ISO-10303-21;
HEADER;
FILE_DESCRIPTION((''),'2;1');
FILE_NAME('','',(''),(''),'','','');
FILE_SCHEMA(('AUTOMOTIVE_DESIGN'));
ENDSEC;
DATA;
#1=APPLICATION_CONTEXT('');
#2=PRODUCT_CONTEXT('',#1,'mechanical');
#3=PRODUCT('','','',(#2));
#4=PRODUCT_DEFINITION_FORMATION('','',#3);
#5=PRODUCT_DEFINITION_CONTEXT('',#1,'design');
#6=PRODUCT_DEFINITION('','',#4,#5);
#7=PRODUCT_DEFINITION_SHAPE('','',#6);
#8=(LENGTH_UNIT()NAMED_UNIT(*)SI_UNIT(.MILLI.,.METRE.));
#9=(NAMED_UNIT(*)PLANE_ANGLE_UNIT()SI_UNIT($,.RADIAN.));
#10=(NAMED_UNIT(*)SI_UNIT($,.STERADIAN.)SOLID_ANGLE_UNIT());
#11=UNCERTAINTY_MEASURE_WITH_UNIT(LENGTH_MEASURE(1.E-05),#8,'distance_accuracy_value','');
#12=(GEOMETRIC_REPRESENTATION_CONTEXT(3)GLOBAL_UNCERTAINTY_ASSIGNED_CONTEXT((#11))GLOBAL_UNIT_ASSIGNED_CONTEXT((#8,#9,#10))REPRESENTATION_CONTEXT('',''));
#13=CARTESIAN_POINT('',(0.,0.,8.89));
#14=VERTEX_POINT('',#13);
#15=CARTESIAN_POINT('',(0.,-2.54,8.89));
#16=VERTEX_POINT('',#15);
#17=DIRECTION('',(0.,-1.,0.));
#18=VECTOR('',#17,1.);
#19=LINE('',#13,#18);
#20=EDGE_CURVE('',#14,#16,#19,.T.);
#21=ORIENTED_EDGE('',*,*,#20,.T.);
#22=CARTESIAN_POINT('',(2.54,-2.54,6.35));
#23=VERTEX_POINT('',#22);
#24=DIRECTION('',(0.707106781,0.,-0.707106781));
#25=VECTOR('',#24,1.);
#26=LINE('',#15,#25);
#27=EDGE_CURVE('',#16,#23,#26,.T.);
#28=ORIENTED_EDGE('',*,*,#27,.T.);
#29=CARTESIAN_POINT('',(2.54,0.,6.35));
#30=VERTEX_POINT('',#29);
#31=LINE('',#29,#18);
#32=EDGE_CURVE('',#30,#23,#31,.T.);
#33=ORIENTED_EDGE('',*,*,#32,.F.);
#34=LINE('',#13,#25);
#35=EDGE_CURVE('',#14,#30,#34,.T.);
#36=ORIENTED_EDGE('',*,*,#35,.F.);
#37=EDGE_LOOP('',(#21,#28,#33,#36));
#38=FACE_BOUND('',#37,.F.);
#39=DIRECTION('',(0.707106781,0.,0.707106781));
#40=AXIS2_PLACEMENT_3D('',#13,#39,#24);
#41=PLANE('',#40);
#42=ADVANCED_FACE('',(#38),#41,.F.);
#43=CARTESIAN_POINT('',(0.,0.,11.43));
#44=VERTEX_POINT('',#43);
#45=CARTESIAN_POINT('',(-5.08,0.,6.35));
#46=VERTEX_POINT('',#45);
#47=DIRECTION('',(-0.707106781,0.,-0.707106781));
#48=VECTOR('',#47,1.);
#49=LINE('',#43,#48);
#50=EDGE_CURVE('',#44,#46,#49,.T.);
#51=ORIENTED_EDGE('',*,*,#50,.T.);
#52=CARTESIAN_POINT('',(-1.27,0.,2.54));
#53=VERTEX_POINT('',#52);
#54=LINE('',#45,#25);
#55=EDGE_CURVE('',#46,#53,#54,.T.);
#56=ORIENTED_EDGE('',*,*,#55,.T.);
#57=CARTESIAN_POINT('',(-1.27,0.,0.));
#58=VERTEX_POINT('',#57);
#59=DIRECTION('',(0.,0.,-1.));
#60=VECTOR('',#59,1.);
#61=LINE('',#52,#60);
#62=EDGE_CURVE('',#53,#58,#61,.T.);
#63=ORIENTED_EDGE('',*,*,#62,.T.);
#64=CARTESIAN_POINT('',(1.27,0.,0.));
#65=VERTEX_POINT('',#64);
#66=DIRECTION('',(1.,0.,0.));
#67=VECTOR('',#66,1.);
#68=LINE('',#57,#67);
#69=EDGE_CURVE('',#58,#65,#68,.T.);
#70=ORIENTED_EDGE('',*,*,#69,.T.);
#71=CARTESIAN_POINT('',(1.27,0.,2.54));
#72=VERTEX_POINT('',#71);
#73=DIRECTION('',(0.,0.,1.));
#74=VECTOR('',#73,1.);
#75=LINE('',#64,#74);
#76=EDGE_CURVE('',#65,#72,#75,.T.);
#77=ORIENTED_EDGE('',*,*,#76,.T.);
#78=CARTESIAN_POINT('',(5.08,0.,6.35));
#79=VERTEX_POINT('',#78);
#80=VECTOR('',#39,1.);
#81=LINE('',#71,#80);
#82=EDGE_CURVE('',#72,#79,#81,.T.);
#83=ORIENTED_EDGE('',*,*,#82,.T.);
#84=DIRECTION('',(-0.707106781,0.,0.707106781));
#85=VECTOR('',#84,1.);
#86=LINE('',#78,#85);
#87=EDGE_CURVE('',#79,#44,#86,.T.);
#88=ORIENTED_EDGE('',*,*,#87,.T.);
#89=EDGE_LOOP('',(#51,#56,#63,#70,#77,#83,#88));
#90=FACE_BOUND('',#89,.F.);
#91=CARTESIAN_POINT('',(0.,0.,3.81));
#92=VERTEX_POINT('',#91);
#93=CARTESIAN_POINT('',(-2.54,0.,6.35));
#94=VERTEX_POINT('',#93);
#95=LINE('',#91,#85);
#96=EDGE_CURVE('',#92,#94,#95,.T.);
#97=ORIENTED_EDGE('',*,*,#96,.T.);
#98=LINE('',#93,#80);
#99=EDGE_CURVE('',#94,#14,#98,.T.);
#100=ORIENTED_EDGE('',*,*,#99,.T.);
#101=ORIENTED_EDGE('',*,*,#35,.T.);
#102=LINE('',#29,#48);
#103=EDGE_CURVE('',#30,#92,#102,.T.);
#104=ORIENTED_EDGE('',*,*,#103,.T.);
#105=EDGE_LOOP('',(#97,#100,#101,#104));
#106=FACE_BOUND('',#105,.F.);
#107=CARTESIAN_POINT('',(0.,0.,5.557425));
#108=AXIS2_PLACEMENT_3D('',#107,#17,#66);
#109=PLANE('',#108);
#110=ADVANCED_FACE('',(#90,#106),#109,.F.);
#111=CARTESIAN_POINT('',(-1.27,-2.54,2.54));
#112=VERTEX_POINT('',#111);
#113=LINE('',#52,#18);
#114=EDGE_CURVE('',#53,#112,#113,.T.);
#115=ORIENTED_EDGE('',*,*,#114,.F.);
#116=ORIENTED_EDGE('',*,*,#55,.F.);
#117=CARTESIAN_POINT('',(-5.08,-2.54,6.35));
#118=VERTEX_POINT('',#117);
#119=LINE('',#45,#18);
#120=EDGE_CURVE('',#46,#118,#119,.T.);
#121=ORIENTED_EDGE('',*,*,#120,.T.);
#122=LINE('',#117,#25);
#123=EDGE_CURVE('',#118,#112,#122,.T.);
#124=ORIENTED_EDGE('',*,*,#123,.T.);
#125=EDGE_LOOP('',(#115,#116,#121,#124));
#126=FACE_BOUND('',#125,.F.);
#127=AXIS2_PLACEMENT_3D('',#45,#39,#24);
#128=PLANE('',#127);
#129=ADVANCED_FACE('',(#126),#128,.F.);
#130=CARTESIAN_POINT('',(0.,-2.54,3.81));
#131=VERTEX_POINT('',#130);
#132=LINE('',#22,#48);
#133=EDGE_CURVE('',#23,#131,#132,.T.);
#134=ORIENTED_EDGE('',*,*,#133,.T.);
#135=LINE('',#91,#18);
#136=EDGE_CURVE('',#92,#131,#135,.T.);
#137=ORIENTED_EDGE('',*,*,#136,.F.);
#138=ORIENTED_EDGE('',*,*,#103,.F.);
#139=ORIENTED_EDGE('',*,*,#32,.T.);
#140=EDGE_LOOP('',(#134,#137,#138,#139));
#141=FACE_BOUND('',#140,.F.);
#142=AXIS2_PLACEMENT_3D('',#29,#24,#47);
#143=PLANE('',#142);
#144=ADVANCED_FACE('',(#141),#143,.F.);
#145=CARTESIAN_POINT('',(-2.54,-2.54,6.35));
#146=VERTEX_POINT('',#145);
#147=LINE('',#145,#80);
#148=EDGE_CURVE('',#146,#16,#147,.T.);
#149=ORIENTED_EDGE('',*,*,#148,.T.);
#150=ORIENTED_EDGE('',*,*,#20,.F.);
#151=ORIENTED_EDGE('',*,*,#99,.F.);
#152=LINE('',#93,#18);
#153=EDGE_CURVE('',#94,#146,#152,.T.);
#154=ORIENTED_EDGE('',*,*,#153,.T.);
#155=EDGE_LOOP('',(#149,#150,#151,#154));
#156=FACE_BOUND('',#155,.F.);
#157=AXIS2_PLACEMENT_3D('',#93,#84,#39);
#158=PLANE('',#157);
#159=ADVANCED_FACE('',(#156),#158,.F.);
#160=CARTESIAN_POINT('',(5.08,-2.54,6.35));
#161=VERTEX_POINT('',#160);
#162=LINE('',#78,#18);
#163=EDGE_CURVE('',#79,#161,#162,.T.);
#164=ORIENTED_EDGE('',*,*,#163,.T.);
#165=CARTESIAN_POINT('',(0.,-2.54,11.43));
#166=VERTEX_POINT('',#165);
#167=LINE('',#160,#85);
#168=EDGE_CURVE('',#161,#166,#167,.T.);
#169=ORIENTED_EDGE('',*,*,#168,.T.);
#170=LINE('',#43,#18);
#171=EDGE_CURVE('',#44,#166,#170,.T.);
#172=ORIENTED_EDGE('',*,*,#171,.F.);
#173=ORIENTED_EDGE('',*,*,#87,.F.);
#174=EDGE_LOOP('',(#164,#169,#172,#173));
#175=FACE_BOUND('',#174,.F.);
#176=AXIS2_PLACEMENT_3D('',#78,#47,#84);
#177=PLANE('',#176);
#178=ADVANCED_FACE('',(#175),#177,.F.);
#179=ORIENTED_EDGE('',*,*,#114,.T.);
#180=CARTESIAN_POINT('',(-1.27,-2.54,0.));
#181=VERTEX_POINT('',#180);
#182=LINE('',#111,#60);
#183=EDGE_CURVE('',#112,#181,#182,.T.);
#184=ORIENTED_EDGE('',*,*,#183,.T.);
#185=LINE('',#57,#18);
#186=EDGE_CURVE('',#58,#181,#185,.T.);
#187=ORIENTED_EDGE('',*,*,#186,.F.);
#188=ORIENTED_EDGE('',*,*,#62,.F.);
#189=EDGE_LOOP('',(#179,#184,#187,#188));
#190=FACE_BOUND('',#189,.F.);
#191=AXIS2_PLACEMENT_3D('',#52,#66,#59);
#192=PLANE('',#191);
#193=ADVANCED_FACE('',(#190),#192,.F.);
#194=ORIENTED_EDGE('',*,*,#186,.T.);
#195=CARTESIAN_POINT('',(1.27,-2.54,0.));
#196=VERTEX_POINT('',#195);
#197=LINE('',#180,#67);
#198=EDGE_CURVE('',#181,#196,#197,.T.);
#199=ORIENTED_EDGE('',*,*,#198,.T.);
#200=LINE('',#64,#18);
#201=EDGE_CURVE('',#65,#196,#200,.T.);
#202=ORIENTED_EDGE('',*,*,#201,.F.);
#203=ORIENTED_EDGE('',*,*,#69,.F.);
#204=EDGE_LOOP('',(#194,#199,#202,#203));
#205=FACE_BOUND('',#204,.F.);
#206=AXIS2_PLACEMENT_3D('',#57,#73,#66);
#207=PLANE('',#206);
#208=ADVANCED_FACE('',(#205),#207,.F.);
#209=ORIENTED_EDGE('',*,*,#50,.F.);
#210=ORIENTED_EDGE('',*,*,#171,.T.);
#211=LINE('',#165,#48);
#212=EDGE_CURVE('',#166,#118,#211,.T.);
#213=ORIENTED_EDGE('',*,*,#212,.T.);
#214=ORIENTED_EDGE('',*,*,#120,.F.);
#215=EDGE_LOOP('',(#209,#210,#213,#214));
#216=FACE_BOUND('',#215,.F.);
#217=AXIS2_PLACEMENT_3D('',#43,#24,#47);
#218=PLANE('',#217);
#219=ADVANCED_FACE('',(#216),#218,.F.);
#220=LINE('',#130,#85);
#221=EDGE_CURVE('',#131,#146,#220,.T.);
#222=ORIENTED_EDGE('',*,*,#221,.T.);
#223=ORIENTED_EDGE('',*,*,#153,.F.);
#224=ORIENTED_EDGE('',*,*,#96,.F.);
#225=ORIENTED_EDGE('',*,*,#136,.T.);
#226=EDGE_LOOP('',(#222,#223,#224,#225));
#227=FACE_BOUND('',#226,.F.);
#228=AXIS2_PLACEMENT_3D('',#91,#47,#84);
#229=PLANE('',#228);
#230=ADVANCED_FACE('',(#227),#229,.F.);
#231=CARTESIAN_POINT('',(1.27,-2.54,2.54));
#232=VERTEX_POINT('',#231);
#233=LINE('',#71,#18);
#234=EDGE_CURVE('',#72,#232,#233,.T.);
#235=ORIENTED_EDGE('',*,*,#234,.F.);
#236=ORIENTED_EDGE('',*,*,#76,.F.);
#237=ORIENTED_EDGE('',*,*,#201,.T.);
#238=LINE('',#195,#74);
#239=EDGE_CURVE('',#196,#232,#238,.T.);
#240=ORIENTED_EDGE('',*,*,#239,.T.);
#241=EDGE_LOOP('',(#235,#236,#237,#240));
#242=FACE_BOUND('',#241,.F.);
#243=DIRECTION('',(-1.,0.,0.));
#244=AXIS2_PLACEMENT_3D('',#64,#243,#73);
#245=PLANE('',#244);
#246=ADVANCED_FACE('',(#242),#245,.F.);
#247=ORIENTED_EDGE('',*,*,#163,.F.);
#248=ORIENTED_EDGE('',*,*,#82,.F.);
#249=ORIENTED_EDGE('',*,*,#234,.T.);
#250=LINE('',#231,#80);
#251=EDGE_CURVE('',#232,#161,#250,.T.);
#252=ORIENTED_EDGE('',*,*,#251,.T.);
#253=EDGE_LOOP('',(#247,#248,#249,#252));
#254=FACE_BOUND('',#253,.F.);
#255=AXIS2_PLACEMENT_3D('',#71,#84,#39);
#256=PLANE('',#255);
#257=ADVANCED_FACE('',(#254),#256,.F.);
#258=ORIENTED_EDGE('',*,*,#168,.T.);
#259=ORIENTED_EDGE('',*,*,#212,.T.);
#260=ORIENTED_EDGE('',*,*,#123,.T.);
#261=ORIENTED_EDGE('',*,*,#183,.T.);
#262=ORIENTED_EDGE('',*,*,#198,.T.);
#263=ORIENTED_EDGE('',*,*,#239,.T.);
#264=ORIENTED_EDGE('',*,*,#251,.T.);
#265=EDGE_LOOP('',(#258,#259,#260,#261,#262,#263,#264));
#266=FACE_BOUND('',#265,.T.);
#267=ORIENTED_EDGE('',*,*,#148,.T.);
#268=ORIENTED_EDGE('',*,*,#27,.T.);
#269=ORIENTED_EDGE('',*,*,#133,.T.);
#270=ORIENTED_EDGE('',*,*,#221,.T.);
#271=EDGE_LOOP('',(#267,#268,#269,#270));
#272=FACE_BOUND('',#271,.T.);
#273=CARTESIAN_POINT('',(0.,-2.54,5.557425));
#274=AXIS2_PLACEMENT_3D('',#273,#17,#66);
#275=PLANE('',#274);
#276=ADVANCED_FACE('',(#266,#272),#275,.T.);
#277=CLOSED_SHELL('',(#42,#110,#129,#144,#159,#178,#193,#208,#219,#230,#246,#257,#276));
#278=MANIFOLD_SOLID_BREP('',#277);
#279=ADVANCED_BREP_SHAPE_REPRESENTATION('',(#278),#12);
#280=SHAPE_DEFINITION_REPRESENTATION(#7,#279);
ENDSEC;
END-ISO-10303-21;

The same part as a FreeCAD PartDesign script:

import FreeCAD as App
import Part
import Sketcher
Q = App.Units.Quantity

doc = App.newDocument("Part")
body = doc.addObject("PartDesign::Body", "Body")

# Sketch on XZ plane
sketch1 = doc.addObject("Sketcher::SketchObject", "Sketch")
body.addObject(sketch1)
sketch1.AttachmentSupport = (doc.XZ_Plane, [""])
sketch1.MapMode = "FlatFace"
sketch1.addGeometry([
    Part.LineSegment(App.Vector(-1.3, 0, 0), App.Vector(1.3, 0, 0)),  # 0
    Part.LineSegment(App.Vector(1.3, 0, 0), App.Vector(1.3, 2.5, 0)),  # 1
    Part.LineSegment(App.Vector(1.3, 2.5, 0), App.Vector(5.1, 6.3, 0)),  # 2
    Part.LineSegment(App.Vector(5.1, 6.3, 0), App.Vector(0, 11.4, 0)),  # 3
    Part.LineSegment(App.Vector(0, 11.4, 0), App.Vector(-5.1, 6.3, 0)),  # 4
    Part.LineSegment(App.Vector(-5.1, 6.3, 0), App.Vector(-1.3, 2.5, 0)),  # 5
    Part.LineSegment(App.Vector(-1.3, 2.5, 0), App.Vector(-1.3, 0, 0)),  # 6
    Part.LineSegment(App.Vector(0, 8.9, 0), App.Vector(2.5, 6.3, 0)),  # 7
    Part.LineSegment(App.Vector(2.5, 6.3, 0), App.Vector(0, 3.8, 0)),  # 8
    Part.LineSegment(App.Vector(0, 3.8, 0), App.Vector(-2.5, 6.3, 0)),  # 9
    Part.LineSegment(App.Vector(-2.5, 6.3, 0), App.Vector(0, 8.9, 0)),  # 10
], False)
sketch1.addConstraint([
    Sketcher.Constraint("Coincident", 0, 2, 1, 1),
    Sketcher.Constraint("Coincident", 1, 2, 2, 1),
    Sketcher.Constraint("Coincident", 2, 2, 3, 1),
    Sketcher.Constraint("Coincident", 3, 2, 4, 1),
    Sketcher.Constraint("Coincident", 4, 2, 5, 1),
    Sketcher.Constraint("Coincident", 5, 2, 6, 1),
    Sketcher.Constraint("Coincident", 6, 2, 0, 1),
    Sketcher.Constraint("Coincident", 7, 2, 8, 1),
    Sketcher.Constraint("Coincident", 8, 2, 9, 1),
    Sketcher.Constraint("Coincident", 9, 2, 10, 1),
    Sketcher.Constraint("Coincident", 10, 2, 7, 1),
    Sketcher.Constraint("Horizontal", 0),
    Sketcher.Constraint("Vertical", 1),
    Sketcher.Constraint("Vertical", 6),
    Sketcher.Constraint("Symmetric", 0, 2, 6, 2, -1, 1),
    Sketcher.Constraint("Symmetric", 2, 2, 4, 2, -2),
    Sketcher.Constraint("Symmetric", 7, 2, 9, 2, -2),
    Sketcher.Constraint("PointOnObject", 3, 2, -2),
    Sketcher.Constraint("PointOnObject", 8, 2, -2),
    Sketcher.Constraint("PointOnObject", 10, 2, -2),
    Sketcher.Constraint("Perpendicular", 2, 3),
    Sketcher.Constraint("Perpendicular", 3, 4),
    Sketcher.Constraint("Perpendicular", 4, 5),
    Sketcher.Constraint("Parallel", 5, 7),
    Sketcher.Constraint("Perpendicular", 7, 8),
    Sketcher.Constraint("Horizontal", 4, 2, 7, 2),
    Sketcher.Constraint("Equal", 0, 1),
    Sketcher.Constraint("DistanceX", 0, 1, 0, 2, Q("0.1 in")),
    Sketcher.Constraint("DistanceX", -1, 1, 2, 2, Q("0.2 in")),
    Sketcher.Constraint("DistanceX", -1, 1, 7, 2, Q("0.1 in")),
])
pad1 = doc.addObject("PartDesign::Pad", "Pad")
body.addObject(pad1)
pad1.Profile = sketch1
pad1.Length = Q("0.1 in")

doc.recompute()
